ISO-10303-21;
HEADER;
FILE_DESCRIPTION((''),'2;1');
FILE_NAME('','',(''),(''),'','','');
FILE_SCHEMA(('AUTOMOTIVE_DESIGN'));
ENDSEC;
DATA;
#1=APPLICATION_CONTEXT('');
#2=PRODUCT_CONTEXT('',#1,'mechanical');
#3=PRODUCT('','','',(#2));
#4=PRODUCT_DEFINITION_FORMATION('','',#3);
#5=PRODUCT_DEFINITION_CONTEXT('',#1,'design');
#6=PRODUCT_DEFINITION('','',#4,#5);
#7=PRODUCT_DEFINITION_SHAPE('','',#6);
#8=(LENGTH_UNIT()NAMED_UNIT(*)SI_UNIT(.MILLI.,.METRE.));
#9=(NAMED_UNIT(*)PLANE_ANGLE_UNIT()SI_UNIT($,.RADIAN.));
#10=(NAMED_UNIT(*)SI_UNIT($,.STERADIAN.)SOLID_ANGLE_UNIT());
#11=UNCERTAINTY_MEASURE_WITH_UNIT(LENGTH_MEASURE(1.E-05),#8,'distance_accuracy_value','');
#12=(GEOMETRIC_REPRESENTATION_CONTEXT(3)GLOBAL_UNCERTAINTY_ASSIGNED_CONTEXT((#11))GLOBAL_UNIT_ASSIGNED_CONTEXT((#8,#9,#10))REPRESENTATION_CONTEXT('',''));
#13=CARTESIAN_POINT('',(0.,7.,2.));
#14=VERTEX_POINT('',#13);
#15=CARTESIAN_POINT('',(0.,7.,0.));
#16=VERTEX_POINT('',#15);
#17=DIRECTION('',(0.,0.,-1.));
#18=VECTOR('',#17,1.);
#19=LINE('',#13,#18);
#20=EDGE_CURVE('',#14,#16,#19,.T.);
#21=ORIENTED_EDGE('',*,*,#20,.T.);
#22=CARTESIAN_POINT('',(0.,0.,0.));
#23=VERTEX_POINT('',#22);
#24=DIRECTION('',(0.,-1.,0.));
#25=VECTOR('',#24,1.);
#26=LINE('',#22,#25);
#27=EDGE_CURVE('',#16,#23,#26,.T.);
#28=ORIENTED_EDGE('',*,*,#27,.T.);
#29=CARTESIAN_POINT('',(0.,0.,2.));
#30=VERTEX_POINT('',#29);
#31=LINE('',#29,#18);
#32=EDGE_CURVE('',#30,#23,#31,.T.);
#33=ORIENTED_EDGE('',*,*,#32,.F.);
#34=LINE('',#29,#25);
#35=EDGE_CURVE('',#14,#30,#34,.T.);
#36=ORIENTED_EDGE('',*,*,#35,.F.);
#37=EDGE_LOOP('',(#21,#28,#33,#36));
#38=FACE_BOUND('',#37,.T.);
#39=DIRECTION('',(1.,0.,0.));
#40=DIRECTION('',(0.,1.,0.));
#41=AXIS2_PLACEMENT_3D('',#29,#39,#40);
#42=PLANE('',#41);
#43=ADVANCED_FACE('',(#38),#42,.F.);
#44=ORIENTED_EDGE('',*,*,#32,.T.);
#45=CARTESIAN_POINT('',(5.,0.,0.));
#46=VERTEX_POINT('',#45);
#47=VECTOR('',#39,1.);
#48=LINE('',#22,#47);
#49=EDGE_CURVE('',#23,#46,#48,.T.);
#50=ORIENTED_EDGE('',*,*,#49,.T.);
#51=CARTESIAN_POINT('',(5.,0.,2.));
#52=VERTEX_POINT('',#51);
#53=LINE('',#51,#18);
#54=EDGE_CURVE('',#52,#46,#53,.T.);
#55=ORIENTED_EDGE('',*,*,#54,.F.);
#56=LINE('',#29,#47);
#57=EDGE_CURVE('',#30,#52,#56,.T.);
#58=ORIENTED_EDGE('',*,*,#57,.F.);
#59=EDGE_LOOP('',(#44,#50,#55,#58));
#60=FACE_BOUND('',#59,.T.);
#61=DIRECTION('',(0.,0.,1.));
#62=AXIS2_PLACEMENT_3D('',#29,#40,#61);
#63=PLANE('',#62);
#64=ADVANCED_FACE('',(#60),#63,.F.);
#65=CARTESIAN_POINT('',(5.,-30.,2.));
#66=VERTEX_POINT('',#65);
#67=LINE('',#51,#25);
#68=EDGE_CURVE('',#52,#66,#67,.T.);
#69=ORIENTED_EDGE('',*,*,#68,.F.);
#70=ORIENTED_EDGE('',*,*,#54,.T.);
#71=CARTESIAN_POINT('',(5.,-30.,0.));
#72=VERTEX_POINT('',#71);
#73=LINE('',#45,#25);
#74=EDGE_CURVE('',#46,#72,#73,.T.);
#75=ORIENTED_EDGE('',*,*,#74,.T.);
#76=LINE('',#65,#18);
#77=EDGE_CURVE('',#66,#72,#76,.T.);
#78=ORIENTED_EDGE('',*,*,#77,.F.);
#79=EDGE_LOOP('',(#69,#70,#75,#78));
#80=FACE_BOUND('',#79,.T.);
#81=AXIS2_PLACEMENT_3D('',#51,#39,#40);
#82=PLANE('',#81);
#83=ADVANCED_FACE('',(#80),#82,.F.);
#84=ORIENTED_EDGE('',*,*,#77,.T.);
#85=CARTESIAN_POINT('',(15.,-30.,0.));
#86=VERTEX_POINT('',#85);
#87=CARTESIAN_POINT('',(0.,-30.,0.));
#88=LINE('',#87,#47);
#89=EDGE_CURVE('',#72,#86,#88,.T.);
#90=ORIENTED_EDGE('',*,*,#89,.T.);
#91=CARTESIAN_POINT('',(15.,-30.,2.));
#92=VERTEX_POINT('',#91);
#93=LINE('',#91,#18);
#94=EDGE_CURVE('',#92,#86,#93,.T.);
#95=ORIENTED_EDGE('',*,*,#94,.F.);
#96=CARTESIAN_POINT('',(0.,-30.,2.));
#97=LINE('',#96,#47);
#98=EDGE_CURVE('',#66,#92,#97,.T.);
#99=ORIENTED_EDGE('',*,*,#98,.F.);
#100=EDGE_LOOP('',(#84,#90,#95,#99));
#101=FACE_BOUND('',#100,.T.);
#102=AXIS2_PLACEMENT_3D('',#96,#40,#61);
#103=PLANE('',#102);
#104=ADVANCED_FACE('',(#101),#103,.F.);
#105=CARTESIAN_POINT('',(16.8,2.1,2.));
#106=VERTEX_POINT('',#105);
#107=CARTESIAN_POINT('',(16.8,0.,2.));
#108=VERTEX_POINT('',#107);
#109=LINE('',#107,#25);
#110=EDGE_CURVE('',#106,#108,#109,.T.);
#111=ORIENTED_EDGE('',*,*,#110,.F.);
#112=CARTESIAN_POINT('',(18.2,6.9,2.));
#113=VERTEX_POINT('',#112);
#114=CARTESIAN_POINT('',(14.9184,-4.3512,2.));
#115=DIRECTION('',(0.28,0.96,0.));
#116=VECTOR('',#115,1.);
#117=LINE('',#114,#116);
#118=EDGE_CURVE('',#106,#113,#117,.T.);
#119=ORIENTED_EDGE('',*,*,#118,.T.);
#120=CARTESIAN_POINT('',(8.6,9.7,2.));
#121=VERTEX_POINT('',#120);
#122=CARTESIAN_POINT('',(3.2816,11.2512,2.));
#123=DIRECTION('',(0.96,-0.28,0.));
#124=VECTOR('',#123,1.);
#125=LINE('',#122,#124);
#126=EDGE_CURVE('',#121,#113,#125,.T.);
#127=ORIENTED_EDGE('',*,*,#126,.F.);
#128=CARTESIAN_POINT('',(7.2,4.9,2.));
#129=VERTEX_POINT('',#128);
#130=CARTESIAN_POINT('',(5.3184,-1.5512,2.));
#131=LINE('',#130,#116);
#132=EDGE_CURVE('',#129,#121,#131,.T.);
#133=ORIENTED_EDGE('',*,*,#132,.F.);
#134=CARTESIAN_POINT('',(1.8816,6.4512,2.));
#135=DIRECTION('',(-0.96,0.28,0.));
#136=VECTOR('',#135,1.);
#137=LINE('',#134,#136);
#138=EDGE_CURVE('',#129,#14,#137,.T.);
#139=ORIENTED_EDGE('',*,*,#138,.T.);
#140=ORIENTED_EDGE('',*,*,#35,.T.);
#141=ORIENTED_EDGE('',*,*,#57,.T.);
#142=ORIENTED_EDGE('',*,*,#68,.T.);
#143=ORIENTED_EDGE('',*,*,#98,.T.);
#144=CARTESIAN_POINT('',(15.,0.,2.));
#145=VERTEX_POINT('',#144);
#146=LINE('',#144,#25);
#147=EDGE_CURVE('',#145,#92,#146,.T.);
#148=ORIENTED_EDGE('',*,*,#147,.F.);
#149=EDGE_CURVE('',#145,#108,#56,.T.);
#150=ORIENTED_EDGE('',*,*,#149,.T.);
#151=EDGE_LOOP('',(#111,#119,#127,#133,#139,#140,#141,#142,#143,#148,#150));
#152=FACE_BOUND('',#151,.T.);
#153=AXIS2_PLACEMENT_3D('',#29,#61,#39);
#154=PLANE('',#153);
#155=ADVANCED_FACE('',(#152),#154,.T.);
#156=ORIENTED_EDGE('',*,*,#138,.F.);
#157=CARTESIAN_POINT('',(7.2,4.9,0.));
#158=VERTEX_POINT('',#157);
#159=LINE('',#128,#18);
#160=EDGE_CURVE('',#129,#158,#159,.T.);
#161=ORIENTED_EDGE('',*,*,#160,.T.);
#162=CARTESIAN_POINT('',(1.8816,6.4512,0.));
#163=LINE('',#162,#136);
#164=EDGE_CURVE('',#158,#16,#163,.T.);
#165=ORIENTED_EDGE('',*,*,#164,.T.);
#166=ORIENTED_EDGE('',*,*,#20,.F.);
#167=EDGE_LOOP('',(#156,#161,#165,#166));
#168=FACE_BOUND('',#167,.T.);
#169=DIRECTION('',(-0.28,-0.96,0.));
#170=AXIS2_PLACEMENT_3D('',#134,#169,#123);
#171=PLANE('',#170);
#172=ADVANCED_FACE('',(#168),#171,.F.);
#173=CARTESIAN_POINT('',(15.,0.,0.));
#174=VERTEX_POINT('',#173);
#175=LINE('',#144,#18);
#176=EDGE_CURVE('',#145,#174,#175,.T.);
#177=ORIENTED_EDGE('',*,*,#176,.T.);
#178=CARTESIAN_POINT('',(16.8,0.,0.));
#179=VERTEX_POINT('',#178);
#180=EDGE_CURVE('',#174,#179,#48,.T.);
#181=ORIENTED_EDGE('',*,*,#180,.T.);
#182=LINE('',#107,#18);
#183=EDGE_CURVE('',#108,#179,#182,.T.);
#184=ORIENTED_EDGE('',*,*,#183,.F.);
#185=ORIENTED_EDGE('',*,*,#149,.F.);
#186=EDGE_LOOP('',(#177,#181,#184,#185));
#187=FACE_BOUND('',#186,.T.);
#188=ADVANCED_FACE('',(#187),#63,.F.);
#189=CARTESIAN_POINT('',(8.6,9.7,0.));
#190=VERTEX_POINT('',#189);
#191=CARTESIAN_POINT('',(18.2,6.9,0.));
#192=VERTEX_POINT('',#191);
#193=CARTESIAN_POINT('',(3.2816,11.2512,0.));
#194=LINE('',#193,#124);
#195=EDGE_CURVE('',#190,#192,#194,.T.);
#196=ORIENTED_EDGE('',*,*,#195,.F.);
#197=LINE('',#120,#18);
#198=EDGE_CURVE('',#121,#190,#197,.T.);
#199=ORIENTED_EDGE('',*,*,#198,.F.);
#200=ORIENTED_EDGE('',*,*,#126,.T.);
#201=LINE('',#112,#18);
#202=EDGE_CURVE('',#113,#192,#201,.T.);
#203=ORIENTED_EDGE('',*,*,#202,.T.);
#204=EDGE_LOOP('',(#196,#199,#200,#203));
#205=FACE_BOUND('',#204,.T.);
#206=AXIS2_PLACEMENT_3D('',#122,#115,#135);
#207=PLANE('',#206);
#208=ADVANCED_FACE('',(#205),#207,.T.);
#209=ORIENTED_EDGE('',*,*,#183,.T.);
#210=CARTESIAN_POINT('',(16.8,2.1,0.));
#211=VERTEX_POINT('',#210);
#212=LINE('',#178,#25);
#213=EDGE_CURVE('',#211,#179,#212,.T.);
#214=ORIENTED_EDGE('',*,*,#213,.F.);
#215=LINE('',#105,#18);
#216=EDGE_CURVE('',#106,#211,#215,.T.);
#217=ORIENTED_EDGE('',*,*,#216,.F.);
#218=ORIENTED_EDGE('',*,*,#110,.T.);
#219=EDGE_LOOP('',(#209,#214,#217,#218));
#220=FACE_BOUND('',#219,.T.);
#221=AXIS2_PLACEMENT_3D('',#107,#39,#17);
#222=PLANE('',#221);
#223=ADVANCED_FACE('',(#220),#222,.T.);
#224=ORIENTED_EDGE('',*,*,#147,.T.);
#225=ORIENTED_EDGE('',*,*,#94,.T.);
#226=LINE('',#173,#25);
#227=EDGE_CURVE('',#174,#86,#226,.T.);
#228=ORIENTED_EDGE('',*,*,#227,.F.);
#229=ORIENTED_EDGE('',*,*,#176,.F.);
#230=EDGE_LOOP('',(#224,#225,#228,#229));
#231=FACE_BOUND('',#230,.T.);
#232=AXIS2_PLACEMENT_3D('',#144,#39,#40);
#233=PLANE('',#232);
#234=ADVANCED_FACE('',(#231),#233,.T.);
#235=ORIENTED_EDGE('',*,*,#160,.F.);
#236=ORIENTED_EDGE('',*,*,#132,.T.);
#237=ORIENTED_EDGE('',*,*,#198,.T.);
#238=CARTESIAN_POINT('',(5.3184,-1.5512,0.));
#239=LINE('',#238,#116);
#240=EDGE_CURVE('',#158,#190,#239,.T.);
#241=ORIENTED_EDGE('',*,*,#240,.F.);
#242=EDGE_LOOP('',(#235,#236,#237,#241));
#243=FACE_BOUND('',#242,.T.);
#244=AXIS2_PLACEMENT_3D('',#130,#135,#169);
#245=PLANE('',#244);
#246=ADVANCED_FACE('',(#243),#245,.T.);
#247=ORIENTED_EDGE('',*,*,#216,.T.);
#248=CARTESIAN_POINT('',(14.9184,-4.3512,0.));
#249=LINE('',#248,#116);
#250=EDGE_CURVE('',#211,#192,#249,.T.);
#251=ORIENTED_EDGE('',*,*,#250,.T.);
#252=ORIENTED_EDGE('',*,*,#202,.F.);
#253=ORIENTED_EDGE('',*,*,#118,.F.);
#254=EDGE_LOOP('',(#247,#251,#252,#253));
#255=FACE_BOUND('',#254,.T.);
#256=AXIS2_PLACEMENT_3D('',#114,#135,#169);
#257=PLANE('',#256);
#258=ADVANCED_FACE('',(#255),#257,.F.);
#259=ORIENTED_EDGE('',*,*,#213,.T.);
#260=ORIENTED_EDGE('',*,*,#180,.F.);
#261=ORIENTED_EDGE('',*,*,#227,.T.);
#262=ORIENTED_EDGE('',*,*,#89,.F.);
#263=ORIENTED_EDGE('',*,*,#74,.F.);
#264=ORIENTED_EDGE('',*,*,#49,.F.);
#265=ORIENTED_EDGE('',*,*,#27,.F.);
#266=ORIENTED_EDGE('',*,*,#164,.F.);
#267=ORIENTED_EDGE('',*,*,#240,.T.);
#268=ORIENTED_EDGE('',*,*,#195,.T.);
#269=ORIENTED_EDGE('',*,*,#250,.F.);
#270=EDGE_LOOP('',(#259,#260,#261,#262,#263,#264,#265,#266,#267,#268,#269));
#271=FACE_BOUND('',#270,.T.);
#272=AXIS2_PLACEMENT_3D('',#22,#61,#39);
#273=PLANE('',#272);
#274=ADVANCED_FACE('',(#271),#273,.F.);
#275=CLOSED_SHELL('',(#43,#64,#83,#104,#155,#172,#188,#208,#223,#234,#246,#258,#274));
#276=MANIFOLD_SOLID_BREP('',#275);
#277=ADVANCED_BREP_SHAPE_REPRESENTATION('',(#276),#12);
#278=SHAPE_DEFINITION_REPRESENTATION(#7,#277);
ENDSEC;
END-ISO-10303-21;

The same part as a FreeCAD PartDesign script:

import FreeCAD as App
import Part
import Sketcher

V = App.Vector

doc = App.newDocument("Part")
params = doc.addObject("Spreadsheet::Sheet", "Params")
for row, (alias, value) in enumerate([
    ("sketch1_width", "10 mm"),
    ("sketch1_width2", "5 mm"),
    ("sketch1_height", "30 mm"),
    ("sketch1_height2", "7 mm"),
    ("sketch1_length", "5 mm"),
    ("pad1_length", "2 mm"),
], start=1):
    params.set(f"A{row}", alias)
    params.set(f"B{row}", "=" + value)
    params.setAlias(f"B{row}", alias)

body = doc.addObject("PartDesign::Body", "Body")

sketch1 = doc.addObject("Sketcher::SketchObject", "Sketch")
body.addObject(sketch1)
sketch1.AttachmentSupport = (doc.XY_Plane, [""])
sketch1.MapMode = "FlatFace"
sketch1.addGeometry(Part.LineSegment(V(5, 0, 0), V(5, -30, 0)), False)
sketch1.addGeometry(Part.LineSegment(V(5, -30, 0), V(15, -30, 0)), False)
sketch1.addGeometry(Part.LineSegment(V(15, -30, 0), V(15, 0, 0)), False)
sketch1.addGeometry(Part.LineSegment(V(15, 0, 0), V(16.8, 0, 0)), False)
sketch1.addGeometry(Part.LineSegment(V(16.8, 0, 0), V(16.8, 2.1, 0)), False)
sketch1.addGeometry(Part.LineSegment(V(16.8, 2.1, 0), V(18.2, 6.9, 0)), False)
sketch1.addGeometry(Part.LineSegment(V(18.2, 6.9, 0), V(8.6, 9.7, 0)), False)
sketch1.addGeometry(Part.LineSegment(V(8.6, 9.7, 0), V(7.2, 4.9, 0)), False)
sketch1.addGeometry(Part.LineSegment(V(7.2, 4.9, 0), V(0, 7, 0)), False)
sketch1.addGeometry(Part.LineSegment(V(0, 7, 0), V(0, 0, 0)), False)
sketch1.addGeometry(Part.LineSegment(V(0, 0, 0), V(5, 0, 0)), False)
sketch1.addConstraint(Sketcher.Constraint("Coincident", 0, 2, 1, 1))
sketch1.addConstraint(Sketcher.Constraint("Coincident", 1, 2, 2, 1))
sketch1.addConstraint(Sketcher.Constraint("Coincident", 2, 2, 3, 1))
sketch1.addConstraint(Sketcher.Constraint("Coincident", 3, 2, 4, 1))
sketch1.addConstraint(Sketcher.Constraint("Coincident", 4, 2, 5, 1))
sketch1.addConstraint(Sketcher.Constraint("Coincident", 5, 2, 6, 1))
sketch1.addConstraint(Sketcher.Constraint("Coincident", 6, 2, 7, 1))
sketch1.addConstraint(Sketcher.Constraint("Coincident", 7, 2, 8, 1))
sketch1.addConstraint(Sketcher.Constraint("Coincident", 8, 2, 9, 1))
sketch1.addConstraint(Sketcher.Constraint("Coincident", 9, 2, 10, 1))
sketch1.addConstraint(Sketcher.Constraint("Coincident", 10, 2, 0, 1))
sketch1.addConstraint(Sketcher.Constraint("Vertical", 0))
sketch1.addConstraint(Sketcher.Constraint("Horizontal", 1))
sketch1.addConstraint(Sketcher.Constraint("Vertical", 2))
sketch1.addConstraint(Sketcher.Constraint("Horizontal", 3))
sketch1.addConstraint(Sketcher.Constraint("Vertical", 4))
sketch1.addConstraint(Sketcher.Constraint("Vertical", 9))
sketch1.addConstraint(Sketcher.Constraint("Horizontal", 10))
sketch1.addConstraint(Sketcher.Constraint("Coincident", 9, 2, -1, 1))
sketch1.addConstraint(Sketcher.Constraint("PointOnObject", 2, 2, -1))
sketch1.addConstraint(Sketcher.Constraint("Perpendicular", 5, 6))
sketch1.addConstraint(Sketcher.Constraint("Perpendicular", 6, 7))
sketch1.addConstraint(Sketcher.Constraint("Perpendicular", 7, 8))
sketch1.addConstraint(Sketcher.Constraint("Equal", 5, 7))
sketch1.addConstraint(Sketcher.Constraint("DistanceX", 1, 1, 1, 2, 10.0))
sketch1.addConstraint(Sketcher.Constraint("DistanceX", 10, 1, 10, 2, 5.0))
sketch1.addConstraint(Sketcher.Constraint("DistanceY", 0, 2, 0, 1, 30.0))
sketch1.addConstraint(Sketcher.Constraint("DistanceY", 9, 2, 9, 1, 7.0))
sketch1.addConstraint(Sketcher.Constraint("Distance", 5, 5.0))
sketch1.addConstraint(Sketcher.Constraint("Distance", 6, 10.0))
sketch1.addConstraint(Sketcher.Constraint("DistanceX", 3, 1, 3, 2, 1.8))
sketch1.addConstraint(Sketcher.Constraint("DistanceY", 4, 1, 4, 2, 2.1))
sketch1.setExpression("Constraints[24]", "Params.sketch1_width")
sketch1.setExpression("Constraints[25]", "Params.sketch1_width2")
sketch1.setExpression("Constraints[26]", "Params.sketch1_height")
sketch1.setExpression("Constraints[27]", "Params.sketch1_height2")
sketch1.setExpression("Constraints[28]", "Params.sketch1_length")
pad1 = doc.addObject("PartDesign::Pad", "Pad")
body.addObject(pad1)
pad1.Profile = sketch1
pad1.setExpression("Length", "Params.pad1_length")

doc.recompute()
